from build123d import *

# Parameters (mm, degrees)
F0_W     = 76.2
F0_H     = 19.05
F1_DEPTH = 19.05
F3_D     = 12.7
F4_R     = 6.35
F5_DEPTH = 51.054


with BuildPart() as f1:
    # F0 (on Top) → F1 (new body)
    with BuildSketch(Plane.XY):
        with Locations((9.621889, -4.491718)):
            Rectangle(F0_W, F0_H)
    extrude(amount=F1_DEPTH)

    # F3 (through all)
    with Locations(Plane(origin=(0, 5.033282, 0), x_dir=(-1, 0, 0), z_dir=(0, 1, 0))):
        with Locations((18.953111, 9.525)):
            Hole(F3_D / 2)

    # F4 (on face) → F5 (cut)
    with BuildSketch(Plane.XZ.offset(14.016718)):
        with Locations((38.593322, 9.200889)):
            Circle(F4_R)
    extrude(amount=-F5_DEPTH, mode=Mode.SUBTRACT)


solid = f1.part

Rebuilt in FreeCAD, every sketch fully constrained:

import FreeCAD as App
import Part
import Sketcher

V = App.Vector
Q = App.Units.Quantity

doc = App.newDocument("Part")
params = doc.addObject("Spreadsheet::Sheet", "Params")
for row, (alias, value) in enumerate([
    ("sketch1_width", "3 in"),
    ("sketch1_height", "0.75 in"),
    ("pad1_length", "0.75 in"),
    ("sketch2_diameter", "0.5 in"),
    ("hole_diameter", "0.5 in"),
    ("sketch3_diameter", "0.5 in"),
    ("pocket1_length", "2.01 in"),
], start=1):
    params.set(f"A{row}", alias)
    params.set(f"B{row}", "=" + value)
    params.setAlias(f"B{row}", alias)

body = doc.addObject("PartDesign::Body", "Body")

# Sketch on XY plane
sketch1 = body.newObject("Sketcher::SketchObject", "Sketch")
sketch1.AttachmentSupport = (doc.getObject("XY_Plane"), [""])
sketch1.MapMode = "FlatFace"
sketch1.addGeometry([
    Part.LineSegment(V(-28.478111, 5.033282, 0), V(-28.478111, -14.016718, 0)),
    Part.LineSegment(V(-28.478111, -14.016718, 0), V(47.721889, -14.016718, 0)),
    Part.LineSegment(V(47.721889, -14.016718, 0), V(47.721889, 5.033282, 0)),
    Part.LineSegment(V(47.721889, 5.033282, 0), V(-28.478111, 5.033282, 0)),
], False)
sketch1.addConstraint([
    Sketcher.Constraint("Coincident", 0, 2, 1, 1),
    Sketcher.Constraint("Coincident", 1, 2, 2, 1),
    Sketcher.Constraint("Coincident", 2, 2, 3, 1),
    Sketcher.Constraint("Coincident", 3, 2, 0, 1),
    Sketcher.Constraint("Vertical", 0),
    Sketcher.Constraint("Horizontal", 1),
    Sketcher.Constraint("Vertical", 2),
    Sketcher.Constraint("Horizontal", 3),
    Sketcher.Constraint("DistanceX", 1, 1, 1, 2, Q("3 in")),
    Sketcher.Constraint("DistanceY", 0, 2, 0, 1, Q("0.75 in")),
    Sketcher.Constraint("DistanceX", 0, 2, -1, 1, Q("28.478111 mm")),
    Sketcher.Constraint("DistanceY", -1, 1, 2, 2, Q("5.033282 mm")),
])
sketch1.setExpression("Constraints[8]", "Params.sketch1_width")
sketch1.setExpression("Constraints[9]", "Params.sketch1_height")
pad1 = body.newObject("PartDesign::Pad", "Pad")
pad1.Profile = sketch1
pad1.setExpression("Length", "Params.pad1_length")

# Sketch on XZ plane
sketch2 = body.newObject("Sketcher::SketchObject", "Sketch001")
sketch2.AttachmentSupport = (doc.getObject("XZ_Plane"), [""])
sketch2.MapMode = "FlatFace"
sketch2.AttachmentOffset = App.Placement(V(0, 0, -5.033282), App.Rotation())
sketch2.addGeometry(Part.Circle(V(-18.953111, 9.525, 0), V(0, 0, 1), 6.35), False)
sketch2.addConstraint([
    Sketcher.Constraint("Diameter", 0, Q("0.5 in")),
    Sketcher.Constraint("DistanceY", -1, 1, 0, 3, Q("0.375 in")),
    Sketcher.Constraint("DistanceX", 0, 3, -1, 1, Q("18.953111 mm")),
])
sketch2.setExpression("Constraints[0]", "Params.sketch2_diameter")
doc.recompute()
hole = body.newObject("PartDesign::Hole", "Hole")
hole.Profile = sketch2
hole.ThreadType = "None"
hole.setExpression("Diameter", "Params.hole_diameter")
hole.DepthType = "ThroughAll"
hole.Reversed = True

# Sketch on XZ plane
sketch3 = body.newObject("Sketcher::SketchObject", "Sketch002")
sketch3.AttachmentSupport = (doc.getObject("XZ_Plane"), [""])
sketch3.MapMode = "FlatFace"
sketch3.AttachmentOffset = App.Placement(V(0, 0, 14.016718), App.Rotation())
sketch3.addGeometry(Part.Circle(V(38.593322, 9.200889, 0), V(0, 0, 1), 6.35), False)
sketch3.addConstraint([
    Sketcher.Constraint("Diameter", 0, Q("0.5 in")),
    Sketcher.Constraint("DistanceY", -1, 1, 0, 3, Q("9.200889 mm")),
    Sketcher.Constraint("DistanceX", -1, 1, 0, 3, Q("38.593322 mm")),
])
sketch3.setExpression("Constraints[0]", "Params.sketch3_diameter")
pocket1 = body.newObject("PartDesign::Pocket", "Pocket")
pocket1.Profile = sketch3
pocket1.setExpression("Length", "Params.pocket1_length")

doc.recompute()
